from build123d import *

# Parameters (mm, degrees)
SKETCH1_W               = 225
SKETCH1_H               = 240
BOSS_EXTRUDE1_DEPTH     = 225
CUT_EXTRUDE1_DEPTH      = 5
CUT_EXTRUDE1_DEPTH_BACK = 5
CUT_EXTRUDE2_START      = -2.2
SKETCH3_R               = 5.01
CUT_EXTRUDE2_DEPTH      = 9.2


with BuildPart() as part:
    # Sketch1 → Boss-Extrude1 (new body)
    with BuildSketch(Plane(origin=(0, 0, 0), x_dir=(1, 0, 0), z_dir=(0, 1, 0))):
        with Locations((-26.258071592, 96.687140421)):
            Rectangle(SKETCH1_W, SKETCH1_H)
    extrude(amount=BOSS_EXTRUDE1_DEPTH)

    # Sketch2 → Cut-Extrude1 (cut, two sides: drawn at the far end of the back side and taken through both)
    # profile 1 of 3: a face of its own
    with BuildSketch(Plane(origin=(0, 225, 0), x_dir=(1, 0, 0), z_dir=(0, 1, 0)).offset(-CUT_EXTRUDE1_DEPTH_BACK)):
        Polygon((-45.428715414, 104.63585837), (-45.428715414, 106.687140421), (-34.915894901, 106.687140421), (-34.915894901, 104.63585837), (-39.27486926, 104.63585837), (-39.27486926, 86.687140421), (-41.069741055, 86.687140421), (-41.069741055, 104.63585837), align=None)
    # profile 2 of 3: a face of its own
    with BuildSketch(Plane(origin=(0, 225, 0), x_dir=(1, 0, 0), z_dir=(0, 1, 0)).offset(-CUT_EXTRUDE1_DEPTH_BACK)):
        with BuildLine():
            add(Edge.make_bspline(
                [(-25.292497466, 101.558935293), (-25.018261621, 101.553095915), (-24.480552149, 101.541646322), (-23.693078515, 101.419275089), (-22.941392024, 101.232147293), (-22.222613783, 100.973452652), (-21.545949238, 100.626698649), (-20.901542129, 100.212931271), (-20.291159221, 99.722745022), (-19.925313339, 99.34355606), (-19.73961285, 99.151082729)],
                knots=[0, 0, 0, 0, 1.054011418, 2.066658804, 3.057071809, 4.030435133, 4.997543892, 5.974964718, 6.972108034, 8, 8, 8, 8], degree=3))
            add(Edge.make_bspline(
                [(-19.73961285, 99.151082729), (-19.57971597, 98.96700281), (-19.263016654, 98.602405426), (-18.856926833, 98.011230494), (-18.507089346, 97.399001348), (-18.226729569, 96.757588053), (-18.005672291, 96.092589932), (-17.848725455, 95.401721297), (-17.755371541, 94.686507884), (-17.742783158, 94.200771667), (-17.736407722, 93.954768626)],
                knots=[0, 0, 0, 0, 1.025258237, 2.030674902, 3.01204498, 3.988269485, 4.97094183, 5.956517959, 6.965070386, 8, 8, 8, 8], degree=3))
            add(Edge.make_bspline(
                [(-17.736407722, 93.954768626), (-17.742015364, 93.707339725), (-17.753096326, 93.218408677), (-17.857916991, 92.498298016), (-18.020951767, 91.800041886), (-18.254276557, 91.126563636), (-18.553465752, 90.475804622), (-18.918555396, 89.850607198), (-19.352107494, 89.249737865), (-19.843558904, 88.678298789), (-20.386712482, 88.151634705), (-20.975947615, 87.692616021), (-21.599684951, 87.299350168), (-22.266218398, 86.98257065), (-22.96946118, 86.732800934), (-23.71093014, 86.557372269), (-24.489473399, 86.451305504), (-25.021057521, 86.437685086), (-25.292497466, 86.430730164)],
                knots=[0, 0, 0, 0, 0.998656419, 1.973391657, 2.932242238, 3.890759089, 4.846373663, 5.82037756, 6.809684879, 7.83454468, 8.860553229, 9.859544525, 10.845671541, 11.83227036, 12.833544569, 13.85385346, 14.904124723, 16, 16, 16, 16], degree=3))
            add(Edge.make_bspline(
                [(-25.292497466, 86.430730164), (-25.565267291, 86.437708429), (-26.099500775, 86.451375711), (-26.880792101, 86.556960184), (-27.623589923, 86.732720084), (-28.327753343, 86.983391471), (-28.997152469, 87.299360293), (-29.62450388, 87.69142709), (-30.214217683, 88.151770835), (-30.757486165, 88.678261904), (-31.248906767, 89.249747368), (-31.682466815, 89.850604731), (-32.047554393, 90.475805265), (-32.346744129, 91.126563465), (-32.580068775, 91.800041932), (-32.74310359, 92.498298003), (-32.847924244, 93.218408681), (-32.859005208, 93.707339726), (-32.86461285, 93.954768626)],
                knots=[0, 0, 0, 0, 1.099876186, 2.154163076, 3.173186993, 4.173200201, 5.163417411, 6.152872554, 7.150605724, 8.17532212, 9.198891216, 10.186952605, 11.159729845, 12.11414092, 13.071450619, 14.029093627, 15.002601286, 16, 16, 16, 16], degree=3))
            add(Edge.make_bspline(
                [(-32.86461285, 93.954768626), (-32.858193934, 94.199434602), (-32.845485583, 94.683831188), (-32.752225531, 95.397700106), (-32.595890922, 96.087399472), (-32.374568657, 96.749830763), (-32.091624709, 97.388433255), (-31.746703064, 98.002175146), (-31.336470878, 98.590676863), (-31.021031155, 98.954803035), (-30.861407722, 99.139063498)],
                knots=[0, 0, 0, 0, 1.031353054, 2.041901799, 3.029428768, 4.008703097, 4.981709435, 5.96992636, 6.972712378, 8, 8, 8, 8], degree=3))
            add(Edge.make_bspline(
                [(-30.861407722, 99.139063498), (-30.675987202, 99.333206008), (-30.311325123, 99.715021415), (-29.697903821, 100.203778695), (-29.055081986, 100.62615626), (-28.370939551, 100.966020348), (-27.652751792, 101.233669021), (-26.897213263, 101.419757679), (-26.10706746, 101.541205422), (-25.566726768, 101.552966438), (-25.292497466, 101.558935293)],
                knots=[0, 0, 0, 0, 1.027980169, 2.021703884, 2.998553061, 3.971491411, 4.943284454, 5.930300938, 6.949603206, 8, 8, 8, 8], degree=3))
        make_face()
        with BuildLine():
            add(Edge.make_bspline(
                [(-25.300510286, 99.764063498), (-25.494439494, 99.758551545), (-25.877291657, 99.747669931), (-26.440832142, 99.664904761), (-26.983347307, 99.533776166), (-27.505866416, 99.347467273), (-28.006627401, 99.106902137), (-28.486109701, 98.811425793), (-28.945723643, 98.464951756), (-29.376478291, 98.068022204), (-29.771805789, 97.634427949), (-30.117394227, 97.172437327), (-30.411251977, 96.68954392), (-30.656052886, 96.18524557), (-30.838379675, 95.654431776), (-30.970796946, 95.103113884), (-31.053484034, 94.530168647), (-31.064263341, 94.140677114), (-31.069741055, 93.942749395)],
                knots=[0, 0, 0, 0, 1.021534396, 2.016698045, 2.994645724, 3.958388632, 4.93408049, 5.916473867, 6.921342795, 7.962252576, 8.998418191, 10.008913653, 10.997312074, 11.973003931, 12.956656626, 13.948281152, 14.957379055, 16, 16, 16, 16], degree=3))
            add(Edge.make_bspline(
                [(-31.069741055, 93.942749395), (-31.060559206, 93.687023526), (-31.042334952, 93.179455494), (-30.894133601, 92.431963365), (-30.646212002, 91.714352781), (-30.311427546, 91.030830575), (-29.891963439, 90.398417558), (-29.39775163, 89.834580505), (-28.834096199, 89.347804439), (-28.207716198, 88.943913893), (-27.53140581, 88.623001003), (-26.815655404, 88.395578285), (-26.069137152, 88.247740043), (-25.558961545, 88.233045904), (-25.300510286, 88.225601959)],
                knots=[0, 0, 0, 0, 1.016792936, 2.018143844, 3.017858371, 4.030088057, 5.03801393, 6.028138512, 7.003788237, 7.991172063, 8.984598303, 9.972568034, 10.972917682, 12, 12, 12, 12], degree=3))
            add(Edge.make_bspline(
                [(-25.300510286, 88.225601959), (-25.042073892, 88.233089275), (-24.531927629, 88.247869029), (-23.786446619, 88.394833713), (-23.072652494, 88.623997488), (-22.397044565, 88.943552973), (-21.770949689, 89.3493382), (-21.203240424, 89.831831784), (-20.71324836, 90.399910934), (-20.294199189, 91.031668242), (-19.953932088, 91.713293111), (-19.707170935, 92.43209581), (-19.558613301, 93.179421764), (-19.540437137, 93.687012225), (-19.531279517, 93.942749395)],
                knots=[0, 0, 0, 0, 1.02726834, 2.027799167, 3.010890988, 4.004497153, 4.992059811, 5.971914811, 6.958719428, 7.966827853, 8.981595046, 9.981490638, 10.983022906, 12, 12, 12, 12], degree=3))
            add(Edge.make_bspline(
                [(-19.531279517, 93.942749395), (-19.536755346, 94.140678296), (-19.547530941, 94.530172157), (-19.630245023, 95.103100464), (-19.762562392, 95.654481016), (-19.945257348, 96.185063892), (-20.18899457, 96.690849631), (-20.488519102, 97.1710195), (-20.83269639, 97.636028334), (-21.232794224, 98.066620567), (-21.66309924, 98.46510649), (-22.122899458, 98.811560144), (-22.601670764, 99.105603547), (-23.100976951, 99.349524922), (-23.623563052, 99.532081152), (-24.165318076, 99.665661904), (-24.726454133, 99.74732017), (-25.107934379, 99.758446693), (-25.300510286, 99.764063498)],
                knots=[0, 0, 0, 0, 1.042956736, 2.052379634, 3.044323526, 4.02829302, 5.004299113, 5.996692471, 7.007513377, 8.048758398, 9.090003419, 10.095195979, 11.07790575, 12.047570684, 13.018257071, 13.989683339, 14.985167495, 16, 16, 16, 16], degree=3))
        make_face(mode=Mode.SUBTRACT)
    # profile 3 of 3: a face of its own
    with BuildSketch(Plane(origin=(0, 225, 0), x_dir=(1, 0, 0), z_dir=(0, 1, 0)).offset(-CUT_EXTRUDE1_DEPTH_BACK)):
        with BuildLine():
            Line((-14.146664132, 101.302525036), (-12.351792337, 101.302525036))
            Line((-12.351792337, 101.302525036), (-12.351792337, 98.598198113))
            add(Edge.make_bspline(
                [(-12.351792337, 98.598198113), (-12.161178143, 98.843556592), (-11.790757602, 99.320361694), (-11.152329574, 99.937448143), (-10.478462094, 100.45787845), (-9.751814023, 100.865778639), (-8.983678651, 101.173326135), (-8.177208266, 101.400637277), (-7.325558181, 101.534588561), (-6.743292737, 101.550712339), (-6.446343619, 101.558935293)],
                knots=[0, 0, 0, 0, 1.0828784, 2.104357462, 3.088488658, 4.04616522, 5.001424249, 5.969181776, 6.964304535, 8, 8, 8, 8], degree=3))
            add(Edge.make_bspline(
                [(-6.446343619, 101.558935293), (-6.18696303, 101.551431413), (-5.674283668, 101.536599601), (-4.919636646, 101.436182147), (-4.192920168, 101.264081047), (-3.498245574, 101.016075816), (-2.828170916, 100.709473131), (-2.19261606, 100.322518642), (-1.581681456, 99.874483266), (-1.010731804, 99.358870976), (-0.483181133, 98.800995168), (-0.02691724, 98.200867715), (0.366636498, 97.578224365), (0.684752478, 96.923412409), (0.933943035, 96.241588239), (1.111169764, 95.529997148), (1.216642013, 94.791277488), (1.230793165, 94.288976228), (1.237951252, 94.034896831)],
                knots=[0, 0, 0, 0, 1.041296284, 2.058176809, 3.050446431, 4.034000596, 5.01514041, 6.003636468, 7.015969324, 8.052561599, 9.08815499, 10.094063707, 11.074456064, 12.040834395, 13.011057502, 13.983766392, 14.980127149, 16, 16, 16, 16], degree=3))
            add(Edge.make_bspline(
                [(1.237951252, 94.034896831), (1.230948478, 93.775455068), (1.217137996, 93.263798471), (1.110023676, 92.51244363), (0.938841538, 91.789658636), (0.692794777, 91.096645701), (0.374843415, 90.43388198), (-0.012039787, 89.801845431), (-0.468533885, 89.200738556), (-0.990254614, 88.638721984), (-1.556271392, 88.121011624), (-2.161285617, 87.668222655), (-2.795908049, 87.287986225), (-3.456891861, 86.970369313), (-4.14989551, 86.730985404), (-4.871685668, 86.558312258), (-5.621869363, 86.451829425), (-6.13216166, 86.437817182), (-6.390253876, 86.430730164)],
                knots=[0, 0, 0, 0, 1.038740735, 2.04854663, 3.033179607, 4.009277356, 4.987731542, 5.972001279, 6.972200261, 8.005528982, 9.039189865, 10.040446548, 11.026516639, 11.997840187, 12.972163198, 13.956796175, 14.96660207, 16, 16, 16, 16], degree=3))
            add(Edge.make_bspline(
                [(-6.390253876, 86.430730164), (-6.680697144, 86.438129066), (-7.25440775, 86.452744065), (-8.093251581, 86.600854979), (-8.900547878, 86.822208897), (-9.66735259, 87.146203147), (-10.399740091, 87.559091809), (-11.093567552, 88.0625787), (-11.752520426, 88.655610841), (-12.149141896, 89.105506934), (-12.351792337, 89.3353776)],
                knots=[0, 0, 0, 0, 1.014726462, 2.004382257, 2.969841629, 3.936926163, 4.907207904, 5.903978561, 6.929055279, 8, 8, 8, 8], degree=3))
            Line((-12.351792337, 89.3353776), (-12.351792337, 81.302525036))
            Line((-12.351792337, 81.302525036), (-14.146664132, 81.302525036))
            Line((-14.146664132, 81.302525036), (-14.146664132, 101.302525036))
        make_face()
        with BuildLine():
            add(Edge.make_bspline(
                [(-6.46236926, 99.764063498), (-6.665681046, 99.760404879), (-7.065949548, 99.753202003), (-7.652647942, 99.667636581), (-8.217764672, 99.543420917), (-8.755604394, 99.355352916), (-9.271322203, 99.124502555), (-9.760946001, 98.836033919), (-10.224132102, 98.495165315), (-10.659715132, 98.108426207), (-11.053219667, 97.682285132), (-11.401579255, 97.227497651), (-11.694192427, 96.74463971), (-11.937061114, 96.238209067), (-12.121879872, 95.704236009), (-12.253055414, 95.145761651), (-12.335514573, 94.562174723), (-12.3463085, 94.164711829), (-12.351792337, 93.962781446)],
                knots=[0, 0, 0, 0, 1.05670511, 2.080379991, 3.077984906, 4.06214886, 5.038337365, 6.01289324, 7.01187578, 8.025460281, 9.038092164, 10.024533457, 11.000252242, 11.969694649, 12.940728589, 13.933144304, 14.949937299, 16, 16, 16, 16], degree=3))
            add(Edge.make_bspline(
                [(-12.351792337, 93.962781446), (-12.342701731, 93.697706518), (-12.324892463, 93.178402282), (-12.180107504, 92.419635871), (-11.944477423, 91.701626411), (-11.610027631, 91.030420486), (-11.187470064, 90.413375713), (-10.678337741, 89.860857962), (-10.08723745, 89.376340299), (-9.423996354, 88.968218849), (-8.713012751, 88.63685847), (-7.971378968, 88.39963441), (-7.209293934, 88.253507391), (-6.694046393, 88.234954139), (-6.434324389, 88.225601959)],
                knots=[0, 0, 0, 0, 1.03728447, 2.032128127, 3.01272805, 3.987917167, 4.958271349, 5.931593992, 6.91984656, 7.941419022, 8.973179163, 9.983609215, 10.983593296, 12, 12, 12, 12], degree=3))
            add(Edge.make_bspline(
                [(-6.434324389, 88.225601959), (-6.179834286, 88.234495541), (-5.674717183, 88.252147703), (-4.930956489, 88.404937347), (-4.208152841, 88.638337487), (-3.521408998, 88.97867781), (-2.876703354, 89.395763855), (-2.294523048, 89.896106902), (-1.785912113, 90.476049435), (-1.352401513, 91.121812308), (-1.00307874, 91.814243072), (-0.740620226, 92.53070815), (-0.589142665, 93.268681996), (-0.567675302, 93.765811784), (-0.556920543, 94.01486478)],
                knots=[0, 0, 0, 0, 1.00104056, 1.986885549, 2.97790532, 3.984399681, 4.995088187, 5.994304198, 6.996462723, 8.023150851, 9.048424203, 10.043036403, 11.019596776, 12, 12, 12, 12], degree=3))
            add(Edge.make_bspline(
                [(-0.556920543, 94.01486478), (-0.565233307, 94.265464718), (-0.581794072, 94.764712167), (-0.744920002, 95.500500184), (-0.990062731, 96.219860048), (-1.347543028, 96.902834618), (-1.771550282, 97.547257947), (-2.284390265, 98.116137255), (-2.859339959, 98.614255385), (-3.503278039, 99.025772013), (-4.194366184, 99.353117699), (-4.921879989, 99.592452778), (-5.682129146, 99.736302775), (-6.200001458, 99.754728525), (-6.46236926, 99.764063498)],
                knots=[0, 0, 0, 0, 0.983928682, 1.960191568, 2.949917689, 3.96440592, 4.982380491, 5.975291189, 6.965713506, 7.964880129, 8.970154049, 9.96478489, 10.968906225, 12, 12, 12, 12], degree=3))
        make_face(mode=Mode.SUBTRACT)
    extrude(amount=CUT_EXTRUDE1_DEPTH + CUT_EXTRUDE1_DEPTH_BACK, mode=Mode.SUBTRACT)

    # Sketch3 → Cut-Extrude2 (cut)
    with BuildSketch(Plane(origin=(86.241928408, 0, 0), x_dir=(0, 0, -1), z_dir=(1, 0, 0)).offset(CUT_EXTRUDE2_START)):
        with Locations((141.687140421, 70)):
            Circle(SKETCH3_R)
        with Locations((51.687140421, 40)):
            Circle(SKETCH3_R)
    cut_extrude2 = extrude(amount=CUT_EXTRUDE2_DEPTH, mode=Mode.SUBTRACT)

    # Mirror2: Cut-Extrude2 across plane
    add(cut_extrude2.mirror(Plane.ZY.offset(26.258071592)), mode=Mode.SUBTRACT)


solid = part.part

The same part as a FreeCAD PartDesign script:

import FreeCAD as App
import Part
import Sketcher

doc = App.newDocument("Part")
params = doc.addObject("Spreadsheet::Sheet", "Params")
for row, (alias, value) in enumerate([
    ("sketch1_width", "225 mm"),
    ("sketch1_height", "240 mm"),
    ("pad1_length", "225 mm"),
    ("sketch2_height", "20 mm"),
    ("pocket1_length", "5 mm"),
    ("pocket1_length2", "5 mm"),
    ("sketch3_diameter", "10.02 mm"),
    ("pocket2_length", "9.2 mm"),
], start=1):
    params.set(f"A{row}", alias)
    params.set(f"B{row}", "=" + value)
    params.setAlias(f"B{row}", alias)

body = doc.addObject("PartDesign::Body", "Body")

# Sketch on XZ plane
sketch1 = body.newObject("Sketcher::SketchObject", "Sketch")
sketch1.AttachmentSupport = (doc.getObject("XZ_Plane"), [""])
sketch1.MapMode = "FlatFace"
sketch1.addGeometry(Part.LineSegment(App.Vector(-139, -217, 0), App.Vector(-139, 23, 0)), False)
sketch1.addGeometry(Part.LineSegment(App.Vector(-139, 23, 0), App.Vector(86, 23, 0)), False)
sketch1.addGeometry(Part.LineSegment(App.Vector(86, 23, 0), App.Vector(86, -217, 0)), False)
sketch1.addGeometry(Part.LineSegment(App.Vector(86, -217, 0), App.Vector(-139, -217, 0)), False)
sketch1.addConstraint(Sketcher.Constraint("Coincident", 0, 2, 1, 1))
sketch1.addConstraint(Sketcher.Constraint("Coincident", 1, 2, 2, 1))
sketch1.addConstraint(Sketcher.Constraint("Coincident", 2, 2, 3, 1))
sketch1.addConstraint(Sketcher.Constraint("Coincident", 3, 2, 0, 1))
sketch1.addConstraint(Sketcher.Constraint("Vertical", 0))
sketch1.addConstraint(Sketcher.Constraint("Horizontal", 1))
sketch1.addConstraint(Sketcher.Constraint("Vertical", 2))
sketch1.addConstraint(Sketcher.Constraint("Horizontal", 3))
sketch1.addConstraint(Sketcher.Constraint("DistanceX", 1, 1, 1, 2, 225.0))
sketch1.addConstraint(Sketcher.Constraint("DistanceY", 0, 1, 0, 2, 240.0))
sketch1.addConstraint(Sketcher.Constraint("DistanceX", 0, 2, -1, 1, 138.758072))
sketch1.addConstraint(Sketcher.Constraint("DistanceY", -1, 1, 0, 2, 23.31286))
sketch1.setExpression("Constraints[8]", "Params.sketch1_width")
sketch1.setExpression("Constraints[9]", "Params.sketch1_height")
pad1 = body.newObject("PartDesign::Pad", "Pad")
pad1.Profile = sketch1
pad1.setExpression("Length", "Params.pad1_length")
pad1.Reversed = True

# Sketch on XZ plane
sketch2 = body.newObject("Sketcher::SketchObject", "Sketch001")
sketch2.AttachmentSupport = (doc.getObject("XZ_Plane"), [""])
sketch2.MapMode = "FlatFace"
sketch2.AttachmentOffset = App.Placement(App.Vector(0, 0, -225), App.Rotation())
sketch2.addGeometry(Part.LineSegment(App.Vector(-45.428715, -106.68714, 0), App.Vector(-45.428715, -104.635858, 0)), False)
sketch2.addGeometry(Part.LineSegment(App.Vector(-45.428715, -104.635858, 0), App.Vector(-41.069741, -104.635858, 0)), False)
sketch2.addGeometry(Part.LineSegment(App.Vector(-41.069741, -104.635858, 0), App.Vector(-41.069741, -86.68714, 0)), False)
sketch2.addGeometry(Part.LineSegment(App.Vector(-41.069741, -86.68714, 0), App.Vector(-39.274869, -86.68714, 0)), False)
sketch2.addGeometry(Part.LineSegment(App.Vector(-39.274869, -86.68714, 0), App.Vector(-39.274869, -104.635858, 0)), False)
sketch2.addGeometry(Part.LineSegment(App.Vector(-39.274869, -104.635858, 0), App.Vector(-34.915895, -104.635858, 0)), False)
sketch2.addGeometry(Part.LineSegment(App.Vector(-34.915895, -104.635858, 0), App.Vector(-34.915895, -106.68714, 0)), False)
sketch2.addGeometry(Part.LineSegment(App.Vector(-34.915895, -106.68714, 0), App.Vector(-45.428715, -106.68714, 0)), False)
sketch2.addGeometry(Part.BSplineCurve([App.Vector(-25.292497, -101.558935, 0), App.Vector(-25.018262, -101.553096, 0), App.Vector(-24.480552, -101.541646, 0), App.Vector(-23.693079, -101.419275, 0), App.Vector(-22.941392, -101.232147, 0), App.Vector(-22.222614, -100.973453, 0), App.Vector(-21.545949, -100.626699, 0), App.Vector(-20.901542, -100.212931, 0), App.Vector(-20.291159, -99.722745, 0), App.Vector(-19.925313, -99.343556, 0), App.Vector(-19.739613, -99.151083, 0)], [4, 1, 1, 1, 1, 1, 1, 1, 4], [0, 1.054011418, 2.066658804, 3.057071809, 4.030435133, 4.997543892, 5.974964718, 6.972108034, 8], False, 3, [1, 1, 1, 1, 1, 1, 1, 1, 1, 1, 1], False), False)
sketch2.addGeometry(Part.BSplineCurve([App.Vector(-30.861408, -99.139063, 0), App.Vector(-30.675987, -99.333206, 0), App.Vector(-30.311325, -99.715021, 0), App.Vector(-29.697904, -100.203779, 0), App.Vector(-29.055082, -100.626156, 0), App.Vector(-28.37094, -100.96602, 0), App.Vector(-27.652752, -101.233669, 0), App.Vector(-26.897213, -101.419758, 0), App.Vector(-26.107067, -101.541205, 0), App.Vector(-25.566727, -101.552966, 0), App.Vector(-25.292497, -101.558935, 0)], [4, 1, 1, 1, 1, 1, 1, 1, 4], [0, 1.027980169, 2.021703884, 2.998553061, 3.971491411, 4.943284454, 5.930300938, 6.949603206, 8], False, 3, [1, 1, 1, 1, 1, 1, 1, 1, 1, 1, 1], False), False)
sketch2.addGeometry(Part.BSplineCurve([App.Vector(-32.864613, -93.954769, 0), App.Vector(-32.858194, -94.199435, 0), App.Vector(-32.845486, -94.683831, 0), App.Vector(-32.752226, -95.3977, 0), App.Vector(-32.595891, -96.087399, 0), App.Vector(-32.374569, -96.749831, 0), App.Vector(-32.091625, -97.388433, 0), App.Vector(-31.746703, -98.002175, 0), App.Vector(-31.336471, -98.590677, 0), App.Vector(-31.021031, -98.954803, 0), App.Vector(-30.861408, -99.139063, 0)], [4, 1, 1, 1, 1, 1, 1, 1, 4], [0, 1.031353054, 2.041901799, 3.029428768, 4.008703097, 4.981709435, 5.96992636, 6.972712378, 8], False, 3, [1, 1, 1, 1, 1, 1, 1, 1, 1, 1, 1], False), False)
sketch2.addGeometry(Part.BSplineCurve([App.Vector(-25.292497, -86.43073, 0), App.Vector(-25.565267, -86.437708, 0), App.Vector(-26.099501, -86.451376, 0), App.Vector(-26.880792, -86.55696, 0), App.Vector(-27.62359, -86.73272, 0), App.Vector(-28.327753, -86.983391, 0), App.Vector(-28.997152, -87.29936, 0), App.Vector(-29.624504, -87.691427, 0), App.Vector(-30.214218, -88.151771, 0), App.Vector(-30.757486, -88.678262, 0), App.Vector(-31.248907, -89.249747, 0), App.Vector(-31.682467, -89.850605, 0), App.Vector(-32.047554, -90.475805, 0), App.Vector(-32.346744, -91.126563, 0), App.Vector(-32.580069, -91.800042, 0), App.Vector(-32.743104, -92.498298, 0), App.Vector(-32.847924, -93.218409, 0), App.Vector(-32.859005, -93.70734, 0), App.Vector(-32.864613, -93.954769, 0)], [4, 1, 1, 1, 1, 1, 1, 1, 1, 1, 1, 1, 1, 1, 1, 1, 4], [0, 1.099876186, 2.154163076, 3.173186993, 4.173200201, 5.163417411, 6.152872554, 7.150605724, 8.17532212, 9.198891216, 10.186952605, 11.159729845, 12.11414092, 13.071450619, 14.029093627, 15.002601286, 16], False, 3, [1, 1, 1, 1, 1, 1, 1, 1, 1, 1, 1, 1, 1, 1, 1, 1, 1, 1, 1], False), False)
sketch2.addGeometry(Part.BSplineCurve([App.Vector(-17.736408, -93.954769, 0), App.Vector(-17.742015, -93.70734, 0), App.Vector(-17.753096, -93.218409, 0), App.Vector(-17.857917, -92.498298, 0), App.Vector(-18.020952, -91.800042, 0), App.Vector(-18.254277, -91.126564, 0), App.Vector(-18.553466, -90.475805, 0), App.Vector(-18.918555, -89.850607, 0), App.Vector(-19.352107, -89.249738, 0), App.Vector(-19.843559, -88.678299, 0), App.Vector(-20.386712, -88.151635, 0), App.Vector(-20.975948, -87.692616, 0), App.Vector(-21.599685, -87.29935, 0), App.Vector(-22.266218, -86.982571, 0), App.Vector(-22.969461, -86.732801, 0), App.Vector(-23.71093, -86.557372, 0), App.Vector(-24.489473, -86.451306, 0), App.Vector(-25.021058, -86.437685, 0), App.Vector(-25.292497, -86.43073, 0)], [4, 1, 1, 1, 1, 1, 1, 1, 1, 1, 1, 1, 1, 1, 1, 1, 4], [0, 0.998656419, 1.973391657, 2.932242238, 3.890759089, 4.846373663, 5.82037756, 6.809684879, 7.83454468, 8.860553229, 9.859544525, 10.845671541, 11.83227036, 12.833544569, 13.85385346, 14.904124723, 16], False, 3, [1, 1, 1, 1, 1, 1, 1, 1, 1, 1, 1, 1, 1, 1, 1, 1, 1, 1, 1], False), False)
sketch2.addGeometry(Part.BSplineCurve([App.Vector(-19.739613, -99.151083, 0), App.Vector(-19.579716, -98.967003, 0), App.Vector(-19.263017, -98.602405, 0), App.Vector(-18.856927, -98.01123, 0), App.Vector(-18.507089, -97.399001, 0), App.Vector(-18.22673, -96.757588, 0), App.Vector(-18.005672, -96.09259, 0), App.Vector(-17.848725, -95.401721, 0), App.Vector(-17.755372, -94.686508, 0), App.Vector(-17.742783, -94.200772, 0), App.Vector(-17.736408, -93.954769, 0)], [4, 1, 1, 1, 1, 1, 1, 1, 4], [0, 1.025258237, 2.030674902, 3.01204498, 3.988269485, 4.97094183, 5.956517959, 6.965070386, 8], False, 3, [1, 1, 1, 1, 1, 1, 1, 1, 1, 1, 1], False), False)
sketch2.addGeometry(Part.BSplineCurve([App.Vector(-19.53128, -93.942749, 0), App.Vector(-19.536755, -94.140678, 0), App.Vector(-19.547531, -94.530172, 0), App.Vector(-19.630245, -95.1031, 0), App.Vector(-19.762562, -95.654481, 0), App.Vector(-19.945257, -96.185064, 0), App.Vector(-20.188995, -96.69085, 0), App.Vector(-20.488519, -97.171019, 0), App.Vector(-20.832696, -97.636028, 0), App.Vector(-21.232794, -98.066621, 0), App.Vector(-21.663099, -98.465106, 0), App.Vector(-22.122899, -98.81156, 0), App.Vector(-22.601671, -99.105604, 0), App.Vector(-23.100977, -99.349525, 0), App.Vector(-23.623563, -99.532081, 0), App.Vector(-24.165318, -99.665662, 0), App.Vector(-24.726454, -99.74732, 0), App.Vector(-25.107934, -99.758447, 0), App.Vector(-25.30051, -99.764063, 0)], [4, 1, 1, 1, 1, 1, 1, 1, 1, 1, 1, 1, 1, 1, 1, 1, 4], [0, 1.042956736, 2.052379634, 3.044323526, 4.02829302, 5.004299113, 5.996692471, 7.007513377, 8.048758398, 9.090003419, 10.095195979, 11.07790575, 12.047570684, 13.018257071, 13.989683339, 14.985167495, 16], False, 3, [1, 1, 1, 1, 1, 1, 1, 1, 1, 1, 1, 1, 1, 1, 1, 1, 1, 1, 1], False), False)
sketch2.addGeometry(Part.BSplineCurve([App.Vector(-25.30051, -88.225602, 0), App.Vector(-25.042074, -88.233089, 0), App.Vector(-24.531928, -88.247869, 0), App.Vector(-23.786447, -88.394834, 0), App.Vector(-23.072652, -88.623997, 0), App.Vector(-22.397045, -88.943553, 0), App.Vector(-21.77095, -89.349338, 0), App.Vector(-21.20324, -89.831832, 0), App.Vector(-20.713248, -90.399911, 0), App.Vector(-20.294199, -91.031668, 0), App.Vector(-19.953932, -91.713293, 0), App.Vector(-19.707171, -92.432096, 0), App.Vector(-19.558613, -93.179422, 0), App.Vector(-19.540437, -93.687012, 0), App.Vector(-19.53128, -93.942749, 0)], [4, 1, 1, 1, 1, 1, 1, 1, 1, 1, 1, 1, 4], [0, 1.02726834, 2.027799167, 3.010890988, 4.004497153, 4.992059811, 5.971914811, 6.958719428, 7.966827853, 8.981595046, 9.981490638, 10.983022906, 12], False, 3, [1, 1, 1, 1, 1, 1, 1, 1, 1, 1, 1, 1, 1, 1, 1], False), False)
sketch2.addGeometry(Part.BSplineCurve([App.Vector(-31.069741, -93.942749, 0), App.Vector(-31.060559, -93.687024, 0), App.Vector(-31.042335, -93.179455, 0), App.Vector(-30.894134, -92.431963, 0), App.Vector(-30.646212, -91.714353, 0), App.Vector(-30.311428, -91.030831, 0), App.Vector(-29.891963, -90.398418, 0), App.Vector(-29.397752, -89.834581, 0), App.Vector(-28.834096, -89.347804, 0), App.Vector(-28.207716, -88.943914, 0), App.Vector(-27.531406, -88.623001, 0), App.Vector(-26.815655, -88.395578, 0), App.Vector(-26.069137, -88.24774, 0), App.Vector(-25.558962, -88.233046, 0), App.Vector(-25.30051, -88.225602, 0)], [4, 1, 1, 1, 1, 1, 1, 1, 1, 1, 1, 1, 4], [0, 1.016792936, 2.018143844, 3.017858371, 4.030088057, 5.03801393, 6.028138512, 7.003788237, 7.991172063, 8.984598303, 9.972568034, 10.972917682, 12], False, 3, [1, 1, 1, 1, 1, 1, 1, 1, 1, 1, 1, 1, 1, 1, 1], False), False)
sketch2.addGeometry(Part.BSplineCurve([App.Vector(-25.30051, -99.764063, 0), App.Vector(-25.494439, -99.758552, 0), App.Vector(-25.877292, -99.74767, 0), App.Vector(-26.440832, -99.664905, 0), App.Vector(-26.983347, -99.533776, 0), App.Vector(-27.505866, -99.347467, 0), App.Vector(-28.006627, -99.106902, 0), App.Vector(-28.48611, -98.811426, 0), App.Vector(-28.945724, -98.464952, 0), App.Vector(-29.376478, -98.068022, 0), App.Vector(-29.771806, -97.634428, 0), App.Vector(-30.117394, -97.172437, 0), App.Vector(-30.411252, -96.689544, 0), App.Vector(-30.656053, -96.185246, 0), App.Vector(-30.83838, -95.654432, 0), App.Vector(-30.970797, -95.103114, 0), App.Vector(-31.053484, -94.530169, 0), App.Vector(-31.064263, -94.140677, 0), App.Vector(-31.069741, -93.942749, 0)], [4, 1, 1, 1, 1, 1, 1, 1, 1, 1, 1, 1, 1, 1, 1, 1, 4], [0, 1.021534396, 2.016698045, 2.994645724, 3.958388632, 4.93408049, 5.916473867, 6.921342795, 7.962252576, 8.998418191, 10.008913653, 10.997312074, 11.973003931, 12.956656626, 13.948281152, 14.957379055, 16], False, 3, [1, 1, 1, 1, 1, 1, 1, 1, 1, 1, 1, 1, 1, 1, 1, 1, 1, 1, 1], False), False)
sketch2.addGeometry(Part.LineSegment(App.Vector(-12.351792, -101.302525, 0), App.Vector(-14.146664, -101.302525, 0)), False)
sketch2.addGeometry(Part.LineSegment(App.Vector(-14.146664, -101.302525, 0), App.Vector(-14.146664, -81.302525, 0)), False)
sketch2.addGeometry(Part.LineSegment(App.Vector(-14.146664, -81.302525, 0), App.Vector(-12.351792, -81.302525, 0)), False)
sketch2.addGeometry(Part.LineSegment(App.Vector(-12.351792, -81.302525, 0), App.Vector(-12.351792, -89.335378, 0)), False)
sketch2.addGeometry(Part.BSplineCurve([App.Vector(-6.390254, -86.43073, 0), App.Vector(-6.680697, -86.438129, 0), App.Vector(-7.254408, -86.452744, 0), App.Vector(-8.093252, -86.600855, 0), App.Vector(-8.900548, -86.822209, 0), App.Vector(-9.667353, -87.146203, 0), App.Vector(-10.39974, -87.559092, 0), App.Vector(-11.093568, -88.062579, 0), App.Vector(-11.75252, -88.655611, 0), App.Vector(-12.149142, -89.105507, 0), App.Vector(-12.351792, -89.335378, 0)], [4, 1, 1, 1, 1, 1, 1, 1, 4], [0, 1.014726462, 2.004382257, 2.969841629, 3.936926163, 4.907207904, 5.903978561, 6.929055279, 8], False, 3, [1, 1, 1, 1, 1, 1, 1, 1, 1, 1, 1], False), False)
sketch2.addGeometry(Part.BSplineCurve([App.Vector(1.237951, -94.034897, 0), App.Vector(1.230948, -93.775455, 0), App.Vector(1.217138, -93.263798, 0), App.Vector(1.110024, -92.512444, 0), App.Vector(0.938842, -91.789659, 0), App.Vector(0.692795, -91.096646, 0), App.Vector(0.374843, -90.433882, 0), App.Vector(-0.01204, -89.801845, 0), App.Vector(-0.468534, -89.200739, 0), App.Vector(-0.990255, -88.638722, 0), App.Vector(-1.556271, -88.121012, 0), App.Vector(-2.161286, -87.668223, 0), App.Vector(-2.795908, -87.287986, 0), App.Vector(-3.456892, -86.970369, 0), App.Vector(-4.149896, -86.730985, 0), App.Vector(-4.871686, -86.558312, 0), App.Vector(-5.621869, -86.451829, 0), App.Vector(-6.132162, -86.437817, 0), App.Vector(-6.390254, -86.43073, 0)], [4, 1, 1, 1, 1, 1, 1, 1, 1, 1, 1, 1, 1, 1, 1, 1, 4], [0, 1.038740735, 2.04854663, 3.033179607, 4.009277356, 4.987731542, 5.972001279, 6.972200261, 8.005528982, 9.039189865, 10.040446548, 11.026516639, 11.997840187, 12.972163198, 13.956796175, 14.96660207, 16], False, 3, [1, 1, 1, 1, 1, 1, 1, 1, 1, 1, 1, 1, 1, 1, 1, 1, 1, 1, 1], False), False)
sketch2.addGeometry(Part.BSplineCurve([App.Vector(-6.446344, -101.558935, 0), App.Vector(-6.186963, -101.551431, 0), App.Vector(-5.674284, -101.5366, 0), App.Vector(-4.919637, -101.436182, 0), App.Vector(-4.19292, -101.264081, 0), App.Vector(-3.498246, -101.016076, 0), App.Vector(-2.828171, -100.709473, 0), App.Vector(-2.192616, -100.322519, 0), App.Vector(-1.581681, -99.874483, 0), App.Vector(-1.010732, -99.358871, 0), App.Vector(-0.483181, -98.800995, 0), App.Vector(-0.026917, -98.200868, 0), App.Vector(0.366636, -97.578224, 0), App.Vector(0.684752, -96.923412, 0), App.Vector(0.933943, -96.241588, 0), App.Vector(1.11117, -95.529997, 0), App.Vector(1.216642, -94.791277, 0), App.Vector(1.230793, -94.288976, 0), App.Vector(1.237951, -94.034897, 0)], [4, 1, 1, 1, 1, 1, 1, 1, 1, 1, 1, 1, 1, 1, 1, 1, 4], [0, 1.041296284, 2.058176809, 3.050446431, 4.034000596, 5.01514041, 6.003636468, 7.015969324, 8.052561599, 9.08815499, 10.094063707, 11.074456064, 12.040834395, 13.011057502, 13.983766392, 14.980127149, 16], False, 3, [1, 1, 1, 1, 1, 1, 1, 1, 1, 1, 1, 1, 1, 1, 1, 1, 1, 1, 1], False), False)
sketch2.addGeometry(Part.BSplineCurve([App.Vector(-12.351792, -98.598198, 0), App.Vector(-12.161178, -98.843557, 0), App.Vector(-11.790758, -99.320362, 0), App.Vector(-11.15233, -99.937448, 0), App.Vector(-10.478462, -100.457878, 0), App.Vector(-9.751814, -100.865779, 0), App.Vector(-8.983679, -101.173326, 0), App.Vector(-8.177208, -101.400637, 0), App.Vector(-7.325558, -101.534589, 0), App.Vector(-6.743293, -101.550712, 0), App.Vector(-6.446344, -101.558935, 0)], [4, 1, 1, 1, 1, 1, 1, 1, 4], [0, 1.0828784, 2.104357462, 3.088488658, 4.04616522, 5.001424249, 5.969181776, 6.964304535, 8], False, 3, [1, 1, 1, 1, 1, 1, 1, 1, 1, 1, 1], False), False)
sketch2.addGeometry(Part.LineSegment(App.Vector(-12.351792, -98.598198, 0), App.Vector(-12.351792, -101.302525, 0)), False)
sketch2.addGeometry(Part.BSplineCurve([App.Vector(-0.556921, -94.014865, 0), App.Vector(-0.565233, -94.265465, 0), App.Vector(-0.581794, -94.764712, 0), App.Vector(-0.74492, -95.5005, 0), App.Vector(-0.990063, -96.21986, 0), App.Vector(-1.347543, -96.902835, 0), App.Vector(-1.77155, -97.547258, 0), App.Vector(-2.28439, -98.116137, 0), App.Vector(-2.85934, -98.614255, 0), App.Vector(-3.503278, -99.025772, 0), App.Vector(-4.194366, -99.353118, 0), App.Vector(-4.92188, -99.592453, 0), App.Vector(-5.682129, -99.736303, 0), App.Vector(-6.200001, -99.754729, 0), App.Vector(-6.462369, -99.764063, 0)], [4, 1, 1, 1, 1, 1, 1, 1, 1, 1, 1, 1, 4], [0, 0.983928682, 1.960191568, 2.949917689, 3.96440592, 4.982380491, 5.975291189, 6.965713506, 7.964880129, 8.970154049, 9.96478489, 10.968906225, 12], False, 3, [1, 1, 1, 1, 1, 1, 1, 1, 1, 1, 1, 1, 1, 1, 1], False), False)
sketch2.addGeometry(Part.BSplineCurve([App.Vector(-6.434324, -88.225602, 0), App.Vector(-6.179834, -88.234496, 0), App.Vector(-5.674717, -88.252148, 0), App.Vector(-4.930956, -88.404937, 0), App.Vector(-4.208153, -88.638337, 0), App.Vector(-3.521409, -88.978678, 0), App.Vector(-2.876703, -89.395764, 0), App.Vector(-2.294523, -89.896107, 0), App.Vector(-1.785912, -90.476049, 0), App.Vector(-1.352402, -91.121812, 0), App.Vector(-1.003079, -91.814243, 0), App.Vector(-0.74062, -92.530708, 0), App.Vector(-0.589143, -93.268682, 0), App.Vector(-0.567675, -93.765812, 0), App.Vector(-0.556921, -94.014865, 0)], [4, 1, 1, 1, 1, 1, 1, 1, 1, 1, 1, 1, 4], [0, 1.00104056, 1.986885549, 2.97790532, 3.984399681, 4.995088187, 5.994304198, 6.996462723, 8.023150851, 9.048424203, 10.043036403, 11.019596776, 12], False, 3, [1, 1, 1, 1, 1, 1, 1, 1, 1, 1, 1, 1, 1, 1, 1], False), False)
sketch2.addGeometry(Part.BSplineCurve([App.Vector(-12.351792, -93.962781, 0), App.Vector(-12.342702, -93.697707, 0), App.Vector(-12.324892, -93.178402, 0), App.Vector(-12.180108, -92.419636, 0), App.Vector(-11.944477, -91.701626, 0), App.Vector(-11.610028, -91.03042, 0), App.Vector(-11.18747, -90.413376, 0), App.Vector(-10.678338, -89.860858, 0), App.Vector(-10.087237, -89.37634, 0), App.Vector(-9.423996, -88.968219, 0), App.Vector(-8.713013, -88.636858, 0), App.Vector(-7.971379, -88.399634, 0), App.Vector(-7.209294, -88.253507, 0), App.Vector(-6.694046, -88.234954, 0), App.Vector(-6.434324, -88.225602, 0)], [4, 1, 1, 1, 1, 1, 1, 1, 1, 1, 1, 1, 4], [0, 1.03728447, 2.032128127, 3.01272805, 3.987917167, 4.958271349, 5.931593992, 6.91984656, 7.941419022, 8.973179163, 9.983609215, 10.983593296, 12], False, 3, [1, 1, 1, 1, 1, 1, 1, 1, 1, 1, 1, 1, 1, 1, 1], False), False)
sketch2.addGeometry(Part.BSplineCurve([App.Vector(-6.462369, -99.764063, 0), App.Vector(-6.665681, -99.760405, 0), App.Vector(-7.06595, -99.753202, 0), App.Vector(-7.652648, -99.667637, 0), App.Vector(-8.217765, -99.543421, 0), App.Vector(-8.755604, -99.355353, 0), App.Vector(-9.271322, -99.124503, 0), App.Vector(-9.760946, -98.836034, 0), App.Vector(-10.224132, -98.495165, 0), App.Vector(-10.659715, -98.108426, 0), App.Vector(-11.05322, -97.682285, 0), App.Vector(-11.401579, -97.227498, 0), App.Vector(-11.694192, -96.74464, 0), App.Vector(-11.937061, -96.238209, 0), App.Vector(-12.12188, -95.704236, 0), App.Vector(-12.253055, -95.145762, 0), App.Vector(-12.335515, -94.562175, 0), App.Vector(-12.346308, -94.164712, 0), App.Vector(-12.351792, -93.962781, 0)], [4, 1, 1, 1, 1, 1, 1, 1, 1, 1, 1, 1, 1, 1, 1, 1, 4], [0, 1.05670511, 2.080379991, 3.077984906, 4.06214886, 5.038337365, 6.01289324, 7.01187578, 8.025460281, 9.038092164, 10.024533457, 11.000252242, 11.969694649, 12.940728589, 13.933144304, 14.949937299, 16], False, 3, [1, 1, 1, 1, 1, 1, 1, 1, 1, 1, 1, 1, 1, 1, 1, 1, 1, 1, 1], False), False)
sketch2.addConstraint(Sketcher.Constraint("Block", 8))
sketch2.addConstraint(Sketcher.Constraint("Block", 9))
sketch2.addConstraint(Sketcher.Constraint("Block", 10))
sketch2.addConstraint(Sketcher.Constraint("Block", 11))
sketch2.addConstraint(Sketcher.Constraint("Block", 12))
sketch2.addConstraint(Sketcher.Constraint("Block", 13))
sketch2.addConstraint(Sketcher.Constraint("Block", 14))
sketch2.addConstraint(Sketcher.Constraint("Block", 15))
sketch2.addConstraint(Sketcher.Constraint("Block", 16))
sketch2.addConstraint(Sketcher.Constraint("Block", 17))
sketch2.addConstraint(Sketcher.Constraint("Block", 22))
sketch2.addConstraint(Sketcher.Constraint("Block", 23))
sketch2.addConstraint(Sketcher.Constraint("Block", 24))
sketch2.addConstraint(Sketcher.Constraint("Block", 25))
sketch2.addConstraint(Sketcher.Constraint("Block", 27))
sketch2.addConstraint(Sketcher.Constraint("Block", 28))
sketch2.addConstraint(Sketcher.Constraint("Block", 29))
sketch2.addConstraint(Sketcher.Constraint("Block", 30))
sketch2.addConstraint(Sketcher.Constraint("Coincident", 0, 2, 1, 1))
sketch2.addConstraint(Sketcher.Constraint("Coincident", 1, 2, 2, 1))
sketch2.addConstraint(Sketcher.Constraint("Coincident", 2, 2, 3, 1))
sketch2.addConstraint(Sketcher.Constraint("Coincident", 3, 2, 4, 1))
sketch2.addConstraint(Sketcher.Constraint("Coincident", 4, 2, 5, 1))
sketch2.addConstraint(Sketcher.Constraint("Coincident", 5, 2, 6, 1))
sketch2.addConstraint(Sketcher.Constraint("Coincident", 6, 2, 7, 1))
sketch2.addConstraint(Sketcher.Constraint("Coincident", 7, 2, 0, 1))
sketch2.addConstraint(Sketcher.Constraint("Coincident", 18, 2, 19, 1))
sketch2.addConstraint(Sketcher.Constraint("Coincident", 19, 2, 20, 1))
sketch2.addConstraint(Sketcher.Constraint("Coincident", 20, 2, 21, 1))
sketch2.addConstraint(Sketcher.Constraint("Coincident", 21, 2, 22, 2))
sketch2.addConstraint(Sketcher.Constraint("Coincident", 25, 1, 26, 1))
sketch2.addConstraint(Sketcher.Constraint("Coincident", 26, 2, 18, 1))
sketch2.addConstraint(Sketcher.Constraint("Vertical", 0))
sketch2.addConstraint(Sketcher.Constraint("Horizontal", 1))
sketch2.addConstraint(Sketcher.Constraint("Vertical", 2))
sketch2.addConstraint(Sketcher.Constraint("Horizontal", 3))
sketch2.addConstraint(Sketcher.Constraint("Vertical", 4))
sketch2.addConstraint(Sketcher.Constraint("Horizontal", 5))
sketch2.addConstraint(Sketcher.Constraint("Vertical", 6))
sketch2.addConstraint(Sketcher.Constraint("Horizontal", 7))
sketch2.addConstraint(Sketcher.Constraint("Horizontal", 18))
sketch2.addConstraint(Sketcher.Constraint("Vertical", 19))
sketch2.addConstraint(Sketcher.Constraint("Horizontal", 20))
sketch2.addConstraint(Sketcher.Constraint("Vertical", 21))
sketch2.addConstraint(Sketcher.Constraint("Vertical", 26))
sketch2.addConstraint(Sketcher.Constraint("Horizontal", 1, 2, 4, 2))
sketch2.addConstraint(Sketcher.Constraint("Equal", 1, 5))
sketch2.addConstraint(Sketcher.Constraint("Equal", 3, 18))
sketch2.addConstraint(Sketcher.Constraint("DistanceY", 19, 1, 19, 2, 20.0))
sketch2.addConstraint(Sketcher.Constraint("DistanceY", 6, 2, 3, 2, 20.0))
sketch2.addConstraint(Sketcher.Constraint("DistanceX", 3, 1, 3, 2, 1.794872))
sketch2.addConstraint(Sketcher.Constraint("DistanceX", 7, 2, 7, 1, 10.512821))
sketch2.addConstraint(Sketcher.Constraint("DistanceY", 0, 1, 0, 2, 2.051282))
sketch2.addConstraint(Sketcher.Constraint("DistanceY", 21, 2, 21, 1, 8.032853))
sketch2.addConstraint(Sketcher.Constraint("DistanceY", 0, 2, -1, 1, 104.635858))
sketch2.addConstraint(Sketcher.Constraint("DistanceX", 1, 2, -1, 1, 41.069741))
sketch2.setExpression("Constraints[48]", "Params.sketch2_height")
pocket1 = body.newObject("PartDesign::Pocket", "Pocket")
pocket1.Profile = sketch2
pocket1.Type = "TwoLengths"
pocket1.setExpression("Length", "Params.pocket1_length")
pocket1.setExpression("Length2", "Params.pocket1_length2")

# Sketch on YZ plane
sketch3 = body.newObject("Sketcher::SketchObject", "Sketch002")
sketch3.AttachmentSupport = (doc.getObject("YZ_Plane"), [""])
sketch3.MapMode = "FlatFace"
sketch3.AttachmentOffset = App.Placement(App.Vector(0, 0, 84.041928), App.Rotation())
sketch3.addGeometry(Part.Circle(App.Vector(70, -142, 0), App.Vector(0, 0, 1), 5), False)
sketch3.addGeometry(Part.Circle(App.Vector(40, -52, 0), App.Vector(0, 0, 1), 5), False)
sketch3.addConstraint(Sketcher.Constraint("Equal", 0, 1))
sketch3.addConstraint(Sketcher.Constraint("Diameter", 0, 10.02))
sketch3.addConstraint(Sketcher.Constraint("DistanceX", -1, 1, 0, 3, 70.0))
sketch3.addConstraint(Sketcher.Constraint("DistanceX", -1, 1, 1, 3, 40.0))
sketch3.addConstraint(Sketcher.Constraint("DistanceY", 0, 3, 1, 3, 90.0))
sketch3.addConstraint(Sketcher.Constraint("DistanceY", 0, 3, -1, 1, 141.68714))
sketch3.setExpression("Constraints[1]", "Params.sketch3_diameter")
pocket2 = body.newObject("PartDesign::Pocket", "Pocket001")
pocket2.Profile = sketch3
pocket2.setExpression("Length", "Params.pocket2_length")
pocket2.Reversed = True
doc.recompute()

datumplane = body.newObject("PartDesign::Plane", "DatumPlane")
datumplane.AttachmentSupport = (doc.getObject("YZ_Plane"), [""])
datumplane.MapMode = "FlatFace"
datumplane.AttachmentOffset = App.Placement(App.Vector(0, 0, -26.258072), App.Rotation())
mirrored = body.newObject("PartDesign::Mirrored", "Mirrored")
mirrored.Originals = [pocket2]
mirrored.MirrorPlane = (datumplane, [""])
body.Tip = mirrored

doc.recompute()
